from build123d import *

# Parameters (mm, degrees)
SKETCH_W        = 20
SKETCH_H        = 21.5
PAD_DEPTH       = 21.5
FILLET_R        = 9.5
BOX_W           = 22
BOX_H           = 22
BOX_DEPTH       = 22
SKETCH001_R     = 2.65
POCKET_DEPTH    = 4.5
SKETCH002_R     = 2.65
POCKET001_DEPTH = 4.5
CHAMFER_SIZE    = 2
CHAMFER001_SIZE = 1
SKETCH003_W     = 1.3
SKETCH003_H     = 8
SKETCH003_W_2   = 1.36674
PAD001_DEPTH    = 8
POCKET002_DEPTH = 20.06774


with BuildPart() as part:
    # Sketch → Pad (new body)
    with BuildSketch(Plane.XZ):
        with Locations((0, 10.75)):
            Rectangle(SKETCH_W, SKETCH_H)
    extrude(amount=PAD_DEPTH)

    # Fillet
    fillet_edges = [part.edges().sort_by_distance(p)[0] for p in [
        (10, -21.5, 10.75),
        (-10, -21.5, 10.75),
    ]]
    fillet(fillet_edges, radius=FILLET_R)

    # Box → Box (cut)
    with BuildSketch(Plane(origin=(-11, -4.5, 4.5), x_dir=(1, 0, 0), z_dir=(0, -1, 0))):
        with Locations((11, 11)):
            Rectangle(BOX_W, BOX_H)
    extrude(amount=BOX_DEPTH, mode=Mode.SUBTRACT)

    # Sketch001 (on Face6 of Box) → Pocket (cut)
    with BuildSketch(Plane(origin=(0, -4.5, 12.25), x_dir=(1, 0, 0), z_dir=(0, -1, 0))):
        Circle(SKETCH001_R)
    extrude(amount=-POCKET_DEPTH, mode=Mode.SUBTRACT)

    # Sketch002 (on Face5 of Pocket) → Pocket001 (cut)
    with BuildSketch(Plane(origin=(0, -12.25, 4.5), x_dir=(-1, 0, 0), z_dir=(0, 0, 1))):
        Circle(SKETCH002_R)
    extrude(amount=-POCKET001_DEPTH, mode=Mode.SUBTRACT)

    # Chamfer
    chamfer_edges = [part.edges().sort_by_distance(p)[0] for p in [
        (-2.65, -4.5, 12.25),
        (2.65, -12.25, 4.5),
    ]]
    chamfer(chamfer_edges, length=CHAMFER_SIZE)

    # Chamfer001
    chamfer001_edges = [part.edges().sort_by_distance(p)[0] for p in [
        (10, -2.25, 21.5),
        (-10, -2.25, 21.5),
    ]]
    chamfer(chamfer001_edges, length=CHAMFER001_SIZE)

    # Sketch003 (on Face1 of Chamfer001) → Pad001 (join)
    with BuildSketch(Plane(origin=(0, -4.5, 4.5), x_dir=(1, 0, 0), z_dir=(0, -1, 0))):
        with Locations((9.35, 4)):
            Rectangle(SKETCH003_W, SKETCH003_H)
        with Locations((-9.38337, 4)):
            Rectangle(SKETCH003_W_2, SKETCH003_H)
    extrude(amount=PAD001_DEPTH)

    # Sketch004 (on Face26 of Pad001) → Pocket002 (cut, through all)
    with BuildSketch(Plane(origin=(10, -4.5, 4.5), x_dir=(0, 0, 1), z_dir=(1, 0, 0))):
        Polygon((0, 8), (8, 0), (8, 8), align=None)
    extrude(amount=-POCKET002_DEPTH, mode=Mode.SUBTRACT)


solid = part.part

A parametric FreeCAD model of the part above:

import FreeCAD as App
import Part
import Sketcher


def edges_at(feature, points):
    """Names of the edges that pass closest to the given points."""
    edges = feature.Shape.Edges
    near = lambda p: min(range(len(edges)), key=lambda i: edges[i].distToShape(Part.Vertex(*p))[0])
    return sorted({f"Edge{near(p) + 1}" for p in points})

doc = App.newDocument("Part")
body = doc.addObject("PartDesign::Body", "Body")

sketch1 = body.newObject("Sketcher::SketchObject", "Sketch")
sketch1.AttachmentSupport = (doc.getObject("XZ_Plane"), [""])
sketch1.MapMode = "FlatFace"
sketch1.addGeometry([
    Part.LineSegment(App.Vector(-10, 22, 0), App.Vector(-10, 0, 0)),
    Part.LineSegment(App.Vector(-10, 0, 0), App.Vector(10, 0, 0)),
    Part.LineSegment(App.Vector(10, 0, 0), App.Vector(10, 22, 0)),
    Part.LineSegment(App.Vector(10, 22, 0), App.Vector(-10, 22, 0)),
], False)
sketch1.addConstraint([
    Sketcher.Constraint("Coincident", 0, 2, 1, 1),
    Sketcher.Constraint("Coincident", 1, 2, 2, 1),
    Sketcher.Constraint("Coincident", 2, 2, 3, 1),
    Sketcher.Constraint("Coincident", 3, 2, 0, 1),
    Sketcher.Constraint("Vertical", 0),
    Sketcher.Constraint("Horizontal", 1),
    Sketcher.Constraint("Vertical", 2),
    Sketcher.Constraint("Horizontal", 3),
    Sketcher.Constraint("Symmetric", 0, 2, 1, 2, -1, 1),
    Sketcher.Constraint("DistanceX", 1, 1, 1, 2, 20.0),
    Sketcher.Constraint("DistanceY", 0, 2, 0, 1, 21.5),
])
pad1 = body.newObject("PartDesign::Pad", "Pad")
pad1.Profile = sketch1
pad1.Length = 21.5
doc.recompute()

fillet = body.newObject("PartDesign::Fillet", "Fillet")
fillet.Base = (pad1, edges_at(pad1, [(10, -21.5, 10.75), (-10, -21.5, 10.75)]))
fillet.Radius = 9.5

sketch2 = body.newObject("Sketcher::SketchObject", "Sketch001")
sketch2.AttachmentSupport = (doc.getObject("XZ_Plane"), [""])
sketch2.MapMode = "FlatFace"
sketch2.AttachmentOffset = App.Placement(App.Vector(0, 0, 4.5), App.Rotation())
sketch2.addGeometry([
    Part.LineSegment(App.Vector(-11, 26, 0), App.Vector(-11, 4, 0)),
    Part.LineSegment(App.Vector(-11, 4, 0), App.Vector(11, 4, 0)),
    Part.LineSegment(App.Vector(11, 4, 0), App.Vector(11, 26, 0)),
    Part.LineSegment(App.Vector(11, 26, 0), App.Vector(-11, 26, 0)),
], False)
sketch2.addConstraint([
    Sketcher.Constraint("Coincident", 0, 2, 1, 1),
    Sketcher.Constraint("Coincident", 1, 2, 2, 1),
    Sketcher.Constraint("Coincident", 2, 2, 3, 1),
    Sketcher.Constraint("Coincident", 3, 2, 0, 1),
    Sketcher.Constraint("Vertical", 0),
    Sketcher.Constraint("Horizontal", 1),
    Sketcher.Constraint("Vertical", 2),
    Sketcher.Constraint("Horizontal", 3),
    Sketcher.Constraint("Equal", 3, 0),
    Sketcher.Constraint("DistanceX", 1, 1, 1, 2, 22.0),
    Sketcher.Constraint("DistanceX", 0, 2, -1, 1, 11.0),
    Sketcher.Constraint("DistanceY", -1, 1, 0, 2, 4.5),
])
pocket1 = body.newObject("PartDesign::Pocket", "Pocket")
pocket1.Profile = sketch2
pocket1.Length = 22
pocket1.Reversed = True

sketch3 = body.newObject("Sketcher::SketchObject", "Sketch002")
sketch3.AttachmentSupport = (doc.getObject("XZ_Plane"), [""])
sketch3.MapMode = "FlatFace"
sketch3.AttachmentOffset = App.Placement(App.Vector(0, 0, 4.5), App.Rotation())
sketch3.addGeometry(Part.Circle(App.Vector(0, 12.2, 0), App.Vector(0, 0, 1), 2.6), False)
sketch3.addConstraint([
    Sketcher.Constraint("PointOnObject", 0, 3, -2),
    Sketcher.Constraint("Diameter", 0, 5.3),
    Sketcher.Constraint("DistanceY", -1, 1, 0, 3, 12.25),
])
pocket2 = body.newObject("PartDesign::Pocket", "Pocket001")
pocket2.Profile = sketch3
pocket2.Length = 4.5

sketch4 = body.newObject("Sketcher::SketchObject", "Sketch003")
sketch4.AttachmentSupport = (doc.getObject("XY_Plane"), [""])
sketch4.MapMode = "FlatFace"
sketch4.AttachmentOffset = App.Placement(App.Vector(0, 0, 4.5), App.Rotation())
sketch4.addGeometry(Part.Circle(App.Vector(0, -12.2, 0), App.Vector(0, 0, 1), 2.6), False)
sketch4.addConstraint([
    Sketcher.Constraint("PointOnObject", 0, 3, -2),
    Sketcher.Constraint("Diameter", 0, 5.3),
    Sketcher.Constraint("DistanceY", 0, 3, -1, 1, 12.25),
])
pocket3 = body.newObject("PartDesign::Pocket", "Pocket002")
pocket3.Profile = sketch4
pocket3.Length = 4.5
doc.recompute()

chamfer = body.newObject("PartDesign::Chamfer", "Chamfer")
chamfer.Base = (pocket3, edges_at(pocket3, [(-2.65, -4.5, 12.25), (2.65, -12.25, 4.5)]))
chamfer.Size = 2
doc.recompute()

chamfer2 = body.newObject("PartDesign::Chamfer", "Chamfer001")
chamfer2.Base = (chamfer, edges_at(chamfer, [(10, -2.25, 21.5), (-10, -2.25, 21.5)]))
chamfer2.Size = 1

sketch5 = body.newObject("Sketcher::SketchObject", "Sketch004")
sketch5.AttachmentSupport = (doc.getObject("XZ_Plane"), [""])
sketch5.MapMode = "FlatFace"
sketch5.AttachmentOffset = App.Placement(App.Vector(0, 0, 4.5), App.Rotation())
sketch5.addGeometry([
    Part.LineSegment(App.Vector(8.7, 12.5, 0), App.Vector(8.7, 4.5, 0)),
    Part.LineSegment(App.Vector(8.7, 4.5, 0), App.Vector(10, 4.5, 0)),
    Part.LineSegment(App.Vector(10, 4.5, 0), App.Vector(10, 12.5, 0)),
    Part.LineSegment(App.Vector(10, 12.5, 0), App.Vector(8.7, 12.5, 0)),
    Part.LineSegment(App.Vector(-10.1, 12.5, 0), App.Vector(-10.1, 4.5, 0)),
    Part.LineSegment(App.Vector(-10.1, 4.5, 0), App.Vector(-8.7, 4.5, 0)),
    Part.LineSegment(App.Vector(-8.7, 4.5, 0), App.Vector(-8.7, 12.5, 0)),
    Part.LineSegment(App.Vector(-8.7, 12.5, 0), App.Vector(-10.1, 12.5, 0)),
], False)
sketch5.addConstraint([
    Sketcher.Constraint("Coincident", 0, 2, 1, 1),
    Sketcher.Constraint("Coincident", 1, 2, 2, 1),
    Sketcher.Constraint("Coincident", 2, 2, 3, 1),
    Sketcher.Constraint("Coincident", 3, 2, 0, 1),
    Sketcher.Constraint("Coincident", 4, 2, 5, 1),
    Sketcher.Constraint("Coincident", 5, 2, 6, 1),
    Sketcher.Constraint("Coincident", 6, 2, 7, 1),
    Sketcher.Constraint("Coincident", 7, 2, 4, 1),
    Sketcher.Constraint("Vertical", 0),
    Sketcher.Constraint("Horizontal", 1),
    Sketcher.Constraint("Vertical", 2),
    Sketcher.Constraint("Horizontal", 3),
    Sketcher.Constraint("Vertical", 4),
    Sketcher.Constraint("Horizontal", 5),
    Sketcher.Constraint("Vertical", 6),
    Sketcher.Constraint("Horizontal", 7),
    Sketcher.Constraint("Symmetric", 0, 2, 5, 2, -2),
    Sketcher.Constraint("Horizontal", 3, 2, 6, 2),
    Sketcher.Constraint("DistanceY", 0, 2, 0, 1, 8.0),
    Sketcher.Constraint("DistanceX", 1, 1, 1, 2, 1.3),
    Sketcher.Constraint("DistanceX", -1, 1, 1, 2, 10.0),
    Sketcher.Constraint("DistanceY", -1, 1, 0, 2, 4.5),
    Sketcher.Constraint("DistanceX", 5, 1, 5, 2, 1.36674),
])
pad2 = body.newObject("PartDesign::Pad", "Pad001")
pad2.Profile = sketch5
pad2.Length = 8

sketch6 = body.newObject("Sketcher::SketchObject", "Sketch005")
sketch6.AttachmentSupport = (doc.getObject("YZ_Plane"), [""])
sketch6.MapMode = "FlatFace"
sketch6.AttachmentOffset = App.Placement(App.Vector(0, 0, 10), App.Rotation())
sketch6.addGeometry([
    Part.LineSegment(App.Vector(-12, 4, 0), App.Vector(-4, 12, 0)),
    Part.LineSegment(App.Vector(-4, 12, 0), App.Vector(-12, 12, 0)),
    Part.LineSegment(App.Vector(-12, 12, 0), App.Vector(-12, 4, 0)),
], False)
sketch6.addConstraint([
    Sketcher.Constraint("Coincident", 0, 2, 1, 1),
    Sketcher.Constraint("Coincident", 1, 2, 2, 1),
    Sketcher.Constraint("Coincident", 2, 2, 0, 1),
    Sketcher.Constraint("Horizontal", 1),
    Sketcher.Constraint("Vertical", 2),
    Sketcher.Constraint("Equal", 1, 2),
    Sketcher.Constraint("DistanceX", 1, 2, 1, 1, 8.0),
    Sketcher.Constraint("DistanceX", 0, 2, -1, 1, 4.5),
    Sketcher.Constraint("DistanceY", -1, 1, 0, 2, 12.5),
])
pocket4 = body.newObject("PartDesign::Pocket", "Pocket003")
pocket4.Profile = sketch6
pocket4.Type = "ThroughAll"

doc.recompute()
